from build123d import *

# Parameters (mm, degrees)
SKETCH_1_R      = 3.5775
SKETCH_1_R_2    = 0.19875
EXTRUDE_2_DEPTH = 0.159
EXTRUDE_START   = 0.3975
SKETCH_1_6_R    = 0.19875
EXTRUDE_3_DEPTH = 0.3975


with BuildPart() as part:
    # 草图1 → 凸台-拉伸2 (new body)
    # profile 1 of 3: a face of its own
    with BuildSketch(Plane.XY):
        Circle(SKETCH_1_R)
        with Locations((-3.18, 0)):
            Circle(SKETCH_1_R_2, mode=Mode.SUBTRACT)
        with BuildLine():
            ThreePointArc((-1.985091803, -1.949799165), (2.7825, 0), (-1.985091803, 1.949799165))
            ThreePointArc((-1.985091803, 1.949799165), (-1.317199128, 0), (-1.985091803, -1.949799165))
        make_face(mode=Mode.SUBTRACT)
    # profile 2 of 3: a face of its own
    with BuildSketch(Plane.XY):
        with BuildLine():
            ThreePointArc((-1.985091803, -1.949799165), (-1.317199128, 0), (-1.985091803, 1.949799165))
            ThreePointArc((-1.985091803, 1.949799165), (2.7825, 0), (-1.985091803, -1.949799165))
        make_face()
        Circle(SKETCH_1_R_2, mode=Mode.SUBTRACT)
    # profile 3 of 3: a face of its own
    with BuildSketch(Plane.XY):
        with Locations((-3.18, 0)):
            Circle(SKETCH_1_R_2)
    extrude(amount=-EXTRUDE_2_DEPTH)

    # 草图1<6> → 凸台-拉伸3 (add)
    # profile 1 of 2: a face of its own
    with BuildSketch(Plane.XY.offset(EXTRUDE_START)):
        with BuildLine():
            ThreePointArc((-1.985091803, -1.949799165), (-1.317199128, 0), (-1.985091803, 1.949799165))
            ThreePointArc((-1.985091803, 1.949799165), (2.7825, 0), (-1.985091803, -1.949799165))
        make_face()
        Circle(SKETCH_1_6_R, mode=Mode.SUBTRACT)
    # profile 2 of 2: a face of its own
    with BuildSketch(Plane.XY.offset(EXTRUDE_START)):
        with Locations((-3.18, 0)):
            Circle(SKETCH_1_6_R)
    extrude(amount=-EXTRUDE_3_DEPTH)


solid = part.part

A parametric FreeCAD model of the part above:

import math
import FreeCAD as App
import Part
import Sketcher
Q = App.Units.Quantity

doc = App.newDocument("Part")
body = doc.addObject("PartDesign::Body", "Body")

# Sketch on XY plane
sketch1 = body.newObject("Sketcher::SketchObject", "Sketch")
sketch1.AttachmentSupport = (doc.getObject("XY_Plane"), [""])
sketch1.MapMode = "FlatFace"
sketch1.addGeometry(Part.Circle(App.Vector(0, 0, 0), App.Vector(0, 0, 1), 3.58), False)
sketch1.addGeometry(Part.Circle(App.Vector(0, 0, 0), App.Vector(0, 0, 1), 0.2), False)
sketch1.addConstraint(Sketcher.Constraint("Coincident", 0, 3, -1, 1))
sketch1.addConstraint(Sketcher.Constraint("Coincident", 1, 3, -1, 1))
sketch1.addConstraint(Sketcher.Constraint("Diameter", 0, Q("7.155 mm")))
sketch1.addConstraint(Sketcher.Constraint("Diameter", 1, Q("0.3975 mm")))
pad1 = body.newObject("PartDesign::Pad", "Pad")
pad1.Profile = sketch1
pad1.Length = 0.159
pad1.Reversed = True

# Sketch on XY plane
sketch2 = body.newObject("Sketcher::SketchObject", "Sketch001")
sketch2.AttachmentSupport = (doc.getObject("XY_Plane"), [""])
sketch2.MapMode = "FlatFace"
sketch2.AttachmentOffset = App.Placement(App.Vector(0, 0, 0.3975), App.Rotation())
sketch2.addGeometry(Part.ArcOfCircle(Part.Circle(App.Vector(-4.5, 0, 0), App.Vector(0, 0, 1), 3.18), math.radians(-38), math.radians(38)), False)
sketch2.addGeometry(Part.ArcOfCircle(Part.Circle(App.Vector(0, 0, 0), App.Vector(0, 0, 1), 2.78), math.radians(-136), math.radians(136)), False)
sketch2.addGeometry(Part.Circle(App.Vector(0, 0, 0), App.Vector(0, 0, 1), 0.2), False)
sketch2.addGeometry(Part.Circle(App.Vector(-3.18, 0, 0), App.Vector(0, 0, 1), 0.2), False)
sketch2.addConstraint(Sketcher.Constraint("Coincident", 0, 1, 1, 1))
sketch2.addConstraint(Sketcher.Constraint("Coincident", 1, 2, 0, 2))
sketch2.addConstraint(Sketcher.Constraint("Coincident", 1, 3, -1, 1))
sketch2.addConstraint(Sketcher.Constraint("Coincident", 2, 3, -1, 1))
sketch2.addConstraint(Sketcher.Constraint("Equal", 2, 3))
sketch2.addConstraint(Sketcher.Constraint("PointOnObject", 0, 3, -1))
sketch2.addConstraint(Sketcher.Constraint("PointOnObject", 3, 3, -1))
sketch2.addConstraint(Sketcher.Constraint("Radius", 0, Q("3.18 mm")))
sketch2.addConstraint(Sketcher.Constraint("Diameter", 2, Q("0.3975 mm")))
sketch2.addConstraint(Sketcher.Constraint("Radius", 1, Q("2.7825 mm")))
sketch2.addConstraint(Sketcher.Constraint("DistanceX", 3, 3, -1, 1, Q("3.18 mm")))
sketch2.addConstraint(Sketcher.Constraint("DistanceX", 0, 3, -1, 1, Q("4.497199 mm")))
pad2 = body.newObject("PartDesign::Pad", "Pad001")
pad2.Profile = sketch2
pad2.Length = 0.3975
pad2.Reversed = True

doc.recompute()
